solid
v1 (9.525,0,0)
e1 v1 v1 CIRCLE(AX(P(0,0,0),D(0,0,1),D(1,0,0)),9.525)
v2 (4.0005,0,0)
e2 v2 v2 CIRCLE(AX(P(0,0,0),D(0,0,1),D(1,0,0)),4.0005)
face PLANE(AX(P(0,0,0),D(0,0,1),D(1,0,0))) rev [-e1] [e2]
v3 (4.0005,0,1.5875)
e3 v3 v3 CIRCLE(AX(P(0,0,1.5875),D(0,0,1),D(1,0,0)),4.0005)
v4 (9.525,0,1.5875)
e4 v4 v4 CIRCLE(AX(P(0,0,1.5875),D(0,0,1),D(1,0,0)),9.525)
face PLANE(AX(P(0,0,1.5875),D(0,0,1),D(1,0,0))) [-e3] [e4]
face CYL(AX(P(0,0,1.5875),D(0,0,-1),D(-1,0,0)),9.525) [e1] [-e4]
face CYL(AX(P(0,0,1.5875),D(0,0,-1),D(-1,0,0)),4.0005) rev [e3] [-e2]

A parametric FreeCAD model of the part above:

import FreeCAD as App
import Part
import Sketcher
from FreeCAD import Vector
Q = App.Units.Quantity

doc = App.newDocument("Part")
body = doc.addObject("PartDesign::Body", "Body")

# Sketch on XY plane
sketch1 = doc.addObject("Sketcher::SketchObject", "Sketch")
body.addObject(sketch1)
sketch1.AttachmentSupport = (doc.XY_Plane, [""])
sketch1.MapMode = "FlatFace"
sketch1.addGeometry([
    Part.Circle(Vector(0, 0, 0), Vector(0, 0, 1), 9.5),
    Part.Circle(Vector(0, 0, 0), Vector(0, 0, 1), 4),
], False)
sketch1.addConstraint([
    Sketcher.Constraint("Coincident", 0, 3, -1, 1),
    Sketcher.Constraint("Coincident", 1, 3, -1, 1),
    Sketcher.Constraint("Diameter", 0, Q("0.75 in")),
    Sketcher.Constraint("Diameter", 1, Q("0.315 in")),
])
pad1 = doc.addObject("PartDesign::Pad", "Pad")
body.addObject(pad1)
pad1.Profile = sketch1
pad1.Length = Q("0.0625 in")

doc.recompute()
